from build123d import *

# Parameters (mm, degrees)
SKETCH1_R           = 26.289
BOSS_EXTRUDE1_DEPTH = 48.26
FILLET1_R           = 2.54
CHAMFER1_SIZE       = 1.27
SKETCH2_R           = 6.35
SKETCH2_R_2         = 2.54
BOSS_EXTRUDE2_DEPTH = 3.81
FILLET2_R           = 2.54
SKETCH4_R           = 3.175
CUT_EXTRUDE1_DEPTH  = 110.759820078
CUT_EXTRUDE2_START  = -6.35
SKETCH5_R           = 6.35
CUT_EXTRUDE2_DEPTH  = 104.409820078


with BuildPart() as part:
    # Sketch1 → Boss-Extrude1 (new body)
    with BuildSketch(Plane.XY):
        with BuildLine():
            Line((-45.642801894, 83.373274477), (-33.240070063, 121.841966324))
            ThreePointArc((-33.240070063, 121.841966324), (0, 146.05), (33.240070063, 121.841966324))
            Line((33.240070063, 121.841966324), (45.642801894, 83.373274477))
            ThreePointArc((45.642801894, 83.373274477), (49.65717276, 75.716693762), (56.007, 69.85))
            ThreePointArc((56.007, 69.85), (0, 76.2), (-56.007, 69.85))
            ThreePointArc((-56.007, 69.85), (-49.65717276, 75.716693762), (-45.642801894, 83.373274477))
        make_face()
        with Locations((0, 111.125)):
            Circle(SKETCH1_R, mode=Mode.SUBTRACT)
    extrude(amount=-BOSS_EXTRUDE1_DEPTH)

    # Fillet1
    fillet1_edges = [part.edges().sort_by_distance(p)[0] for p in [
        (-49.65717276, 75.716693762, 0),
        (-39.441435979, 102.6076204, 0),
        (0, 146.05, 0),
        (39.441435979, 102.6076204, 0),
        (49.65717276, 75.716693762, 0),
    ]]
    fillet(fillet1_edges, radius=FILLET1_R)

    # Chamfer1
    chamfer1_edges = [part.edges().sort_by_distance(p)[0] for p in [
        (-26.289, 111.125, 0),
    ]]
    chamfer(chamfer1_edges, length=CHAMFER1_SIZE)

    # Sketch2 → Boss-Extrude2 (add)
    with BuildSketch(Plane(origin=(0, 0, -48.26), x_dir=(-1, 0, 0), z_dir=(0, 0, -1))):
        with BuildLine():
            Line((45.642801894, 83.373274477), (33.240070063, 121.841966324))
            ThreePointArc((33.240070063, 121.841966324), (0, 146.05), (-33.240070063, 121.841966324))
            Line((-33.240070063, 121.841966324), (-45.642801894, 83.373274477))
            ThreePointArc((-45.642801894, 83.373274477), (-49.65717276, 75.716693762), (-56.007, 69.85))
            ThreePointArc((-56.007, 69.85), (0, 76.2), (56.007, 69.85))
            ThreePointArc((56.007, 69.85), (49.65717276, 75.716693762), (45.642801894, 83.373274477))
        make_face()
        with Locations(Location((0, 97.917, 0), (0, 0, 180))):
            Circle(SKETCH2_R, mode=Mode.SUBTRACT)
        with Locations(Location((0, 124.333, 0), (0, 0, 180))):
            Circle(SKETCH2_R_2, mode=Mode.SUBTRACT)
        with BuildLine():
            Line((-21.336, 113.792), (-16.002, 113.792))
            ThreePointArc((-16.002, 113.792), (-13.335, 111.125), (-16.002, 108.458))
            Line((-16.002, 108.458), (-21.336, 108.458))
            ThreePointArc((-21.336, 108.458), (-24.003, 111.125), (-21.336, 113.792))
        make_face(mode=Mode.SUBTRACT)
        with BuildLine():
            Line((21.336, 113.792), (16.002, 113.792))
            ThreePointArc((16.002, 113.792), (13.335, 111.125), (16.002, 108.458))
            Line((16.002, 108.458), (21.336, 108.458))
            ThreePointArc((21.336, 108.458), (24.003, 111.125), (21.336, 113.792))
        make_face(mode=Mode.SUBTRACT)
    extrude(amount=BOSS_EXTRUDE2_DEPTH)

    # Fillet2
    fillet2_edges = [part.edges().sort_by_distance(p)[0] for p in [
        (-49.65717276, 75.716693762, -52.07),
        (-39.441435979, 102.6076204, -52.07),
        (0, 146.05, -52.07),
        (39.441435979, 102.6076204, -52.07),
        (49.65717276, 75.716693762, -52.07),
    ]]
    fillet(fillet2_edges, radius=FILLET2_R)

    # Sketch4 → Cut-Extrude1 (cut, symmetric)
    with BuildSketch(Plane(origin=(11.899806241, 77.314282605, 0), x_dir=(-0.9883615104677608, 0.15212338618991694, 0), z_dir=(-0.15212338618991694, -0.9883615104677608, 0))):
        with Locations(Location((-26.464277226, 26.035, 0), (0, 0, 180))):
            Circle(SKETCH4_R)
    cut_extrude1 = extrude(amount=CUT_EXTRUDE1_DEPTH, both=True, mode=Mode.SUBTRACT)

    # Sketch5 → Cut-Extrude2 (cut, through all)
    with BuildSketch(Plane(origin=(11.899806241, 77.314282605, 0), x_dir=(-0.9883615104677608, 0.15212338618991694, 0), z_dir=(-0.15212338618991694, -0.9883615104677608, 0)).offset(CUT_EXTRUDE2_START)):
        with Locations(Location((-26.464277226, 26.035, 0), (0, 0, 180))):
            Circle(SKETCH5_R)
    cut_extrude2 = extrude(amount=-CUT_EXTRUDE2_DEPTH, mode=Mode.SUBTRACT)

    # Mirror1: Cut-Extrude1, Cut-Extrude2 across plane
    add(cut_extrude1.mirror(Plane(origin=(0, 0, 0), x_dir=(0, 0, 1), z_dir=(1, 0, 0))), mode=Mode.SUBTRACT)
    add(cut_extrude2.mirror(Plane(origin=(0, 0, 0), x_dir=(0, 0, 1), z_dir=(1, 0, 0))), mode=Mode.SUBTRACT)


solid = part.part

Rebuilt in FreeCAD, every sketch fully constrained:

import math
import FreeCAD as App
import Part
import Sketcher
Q = App.Units.Quantity


def edges_at(feature, points):
    """Names of the edges that pass closest to the given points."""
    edges = feature.Shape.Edges
    near = lambda p: min(range(len(edges)), key=lambda i: edges[i].distToShape(Part.Vertex(*p))[0])
    return sorted({f"Edge{near(p) + 1}" for p in points})

doc = App.newDocument("Part")
body = doc.addObject("PartDesign::Body", "Body")

sketch1 = doc.addObject("Sketcher::SketchObject", "Sketch")
body.addObject(sketch1)
sketch1.AttachmentSupport = (doc.XY_Plane, [""])
sketch1.MapMode = "FlatFace"
sketch1.addGeometry([
    Part.LineSegment(App.Vector(-33, 122, 0), App.Vector(-46, 83, 0)),
    Part.ArcOfCircle(Part.Circle(App.Vector(-70, 91, 0), App.Vector(0, 0, 1), 25), math.radians(-57), math.radians(-18)),
    Part.ArcOfCircle(Part.Circle(App.Vector(0, -174, 0), App.Vector(0, 0, 1), 250), math.radians(77), math.radians(103)),
    Part.ArcOfCircle(Part.Circle(App.Vector(70, 91, 0), App.Vector(0, 0, 1), 25), math.radians(-162), math.radians(-123)),
    Part.LineSegment(App.Vector(46, 83, 0), App.Vector(33, 122, 0)),
    Part.ArcOfCircle(Part.Circle(App.Vector(0, 111, 0), App.Vector(0, 0, 1), 35), math.radians(18), math.radians(162)),
    Part.Circle(App.Vector(0, 111, 0), App.Vector(0, 0, 1), 26),
], False)
sketch1.addConstraint([
    Sketcher.Constraint("Tangent", 0, 2, 1, 2),
    Sketcher.Constraint("Coincident", 1, 1, 2, 2),
    Sketcher.Constraint("Coincident", 2, 1, 3, 2),
    Sketcher.Constraint("Tangent", 3, 1, 4, 1),
    Sketcher.Constraint("Tangent", 4, 2, 5, 1),
    Sketcher.Constraint("Tangent", 5, 2, 0, 1),
    Sketcher.Constraint("Coincident", 6, 3, 5, 3),
    Sketcher.Constraint("Equal", 1, 3),
    Sketcher.Constraint("Symmetric", 1, 3, 3, 3, -2),
    Sketcher.Constraint("PointOnObject", 2, 3, -2),
    Sketcher.Constraint("PointOnObject", 5, 3, -2),
    Sketcher.Constraint("Radius", 1, Q("1 in")),
    Sketcher.Constraint("Diameter", 6, Q("2.07 in")),
    Sketcher.Constraint("Radius", 5, Q("1.375 in")),
    Sketcher.Constraint("DistanceY", -1, 1, 1, 1, Q("2.75 in")),
    Sketcher.Constraint("DistanceX", 1, 1, 2, 1, Q("4.41 in")),
    Sketcher.Constraint("DistanceY", -1, 1, 5, 3, Q("4.375 in")),
    Sketcher.Constraint("Radius", 2, 250.16587),
    Sketcher.Constraint("DistanceX", 1, 3, -1, 1, 69.817398),
])
pad1 = doc.addObject("PartDesign::Pad", "Pad")
body.addObject(pad1)
pad1.Profile = sketch1
pad1.Length = Q("1.9 in")
pad1.Reversed = True
doc.recompute()

fillet = doc.addObject("PartDesign::Fillet", "Fillet")
body.addObject(fillet)
fillet.Base = (pad1, edges_at(pad1, [
    (-49.657, 75.717, 0),
    (-39.441, 102.608, 0),
    (0, 146.05, 0),
    (39.441, 102.608, 0),
    (49.657, 75.717, 0),
]))
fillet.Radius = Q("0.1 in")
doc.recompute()

chamfer = doc.addObject("PartDesign::Chamfer", "Chamfer")
body.addObject(chamfer)
chamfer.Base = (fillet, edges_at(fillet, [(-26.289, 111.125, 0)]))
chamfer.Size = Q("0.05 in")

sketch2 = doc.addObject("Sketcher::SketchObject", "Sketch001")
body.addObject(sketch2)
sketch2.AttachmentSupport = (doc.XY_Plane, [""])
sketch2.MapMode = "FlatFace"
sketch2.AttachmentOffset = App.Placement(App.Vector(0, 0, -1.9 * 25.4), App.Rotation())
sketch2.addGeometry([
    Part.LineSegment(App.Vector(-45.6, 83.4, 0), App.Vector(-33.2, 121.8, 0)),
    Part.ArcOfCircle(Part.Circle(App.Vector(0, 111.1, 0), App.Vector(0, 0, 1), 34.9), math.radians(18), math.radians(162)),
    Part.LineSegment(App.Vector(33.2, 121.8, 0), App.Vector(45.6, 83.4, 0)),
    Part.ArcOfCircle(Part.Circle(App.Vector(69.8, 91.2, 0), App.Vector(0, 0, 1), 25.4), math.radians(-162), math.radians(-123)),
    Part.ArcOfCircle(Part.Circle(App.Vector(0, -174, 0), App.Vector(0, 0, 1), 250.2), math.radians(77), math.radians(103)),
    Part.ArcOfCircle(Part.Circle(App.Vector(-69.8, 91.2, 0), App.Vector(0, 0, 1), 25.4), math.radians(-57), math.radians(-18)),
    Part.Circle(App.Vector(0, 97.9, 0), App.Vector(0, 0, 1), 6.3),
    Part.ArcOfCircle(Part.Circle(App.Vector(21.3, 111.1, 0), App.Vector(0, 0, 1), 2.7), math.radians(-90), math.radians(90)),
    Part.LineSegment(App.Vector(21.3, 113.8, 0), App.Vector(16, 113.8, 0)),
    Part.ArcOfCircle(Part.Circle(App.Vector(16, 111.1, 0), App.Vector(0, 0, 1), 2.7), math.radians(90), math.radians(270)),
    Part.LineSegment(App.Vector(16, 108.5, 0), App.Vector(21.3, 108.5, 0)),
    Part.LineSegment(App.Vector(-16, 113.8, 0), App.Vector(-21.3, 113.8, 0)),
    Part.ArcOfCircle(Part.Circle(App.Vector(-21.3, 111.1, 0), App.Vector(0, 0, 1), 2.7), math.radians(90), math.radians(270)),
    Part.LineSegment(App.Vector(-21.3, 108.5, 0), App.Vector(-16, 108.5, 0)),
    Part.ArcOfCircle(Part.Circle(App.Vector(-16, 111.1, 0), App.Vector(0, 0, 1), 2.7), math.radians(-90), math.radians(90)),
    Part.Circle(App.Vector(0, 124.3, 0), App.Vector(0, 0, 1), 2.5),
], False)
sketch2.addConstraint([
    Sketcher.Constraint("Tangent", 0, 2, 1, 2),
    Sketcher.Constraint("Tangent", 1, 1, 2, 1),
    Sketcher.Constraint("Tangent", 2, 2, 3, 1),
    Sketcher.Constraint("Coincident", 3, 2, 4, 1),
    Sketcher.Constraint("Coincident", 4, 2, 5, 1),
    Sketcher.Constraint("Tangent", 5, 2, 0, 1),
    Sketcher.Constraint("Tangent", 7, 2, 8, 1),
    Sketcher.Constraint("Tangent", 8, 2, 9, 1),
    Sketcher.Constraint("Tangent", 9, 2, 10, 1),
    Sketcher.Constraint("Tangent", 10, 2, 7, 1),
    Sketcher.Constraint("Tangent", 11, 2, 12, 1),
    Sketcher.Constraint("Tangent", 12, 2, 13, 1),
    Sketcher.Constraint("Tangent", 13, 2, 14, 1),
    Sketcher.Constraint("Tangent", 14, 2, 11, 1),
    Sketcher.Constraint("Horizontal", 8),
    Sketcher.Constraint("Horizontal", 10),
    Sketcher.Constraint("Horizontal", 11),
    Sketcher.Constraint("Horizontal", 13),
    Sketcher.Constraint("Equal", 3, 5),
    Sketcher.Constraint("Equal", 9, 12),
    Sketcher.Constraint("Symmetric", 3, 3, 5, 3, -2),
    Sketcher.Constraint("Symmetric", 7, 3, 12, 3, -2),
    Sketcher.Constraint("PointOnObject", 1, 3, -2),
    Sketcher.Constraint("PointOnObject", 4, 3, -2),
    Sketcher.Constraint("PointOnObject", 6, 3, -2),
    Sketcher.Constraint("PointOnObject", 15, 3, -2),
    Sketcher.Constraint("Horizontal", 1, 3, 7, 3),
    Sketcher.Constraint("Equal", 10, 11),
    Sketcher.Constraint("Radius", 3, Q("1 in")),
    Sketcher.Constraint("Diameter", 6, Q("0.5 in")),
    Sketcher.Constraint("Diameter", 15, Q("0.2 in")),
    Sketcher.Constraint("Radius", 1, Q("1.375 in")),
    Sketcher.Constraint("Radius", 7, Q("0.105 in")),
    Sketcher.Constraint("DistanceX", 8, 2, 8, 1, Q("0.21 in")),
    Sketcher.Constraint("DistanceX", -1, 1, 7, 3, Q("0.84 in")),
    Sketcher.Constraint("DistanceY", -1, 1, 3, 2, Q("2.75 in")),
    Sketcher.Constraint("DistanceY", -1, 1, 7, 2, Q("4.48 in")),
    Sketcher.Constraint("DistanceY", 6, 3, 1, 3, Q("0.52 in")),
    Sketcher.Constraint("DistanceY", 1, 3, 15, 3, Q("0.52 in")),
    Sketcher.Constraint("DistanceX", -1, 1, 3, 2, Q("2.205 in")),
    Sketcher.Constraint("Radius", 4, 250.16587),
    Sketcher.Constraint("DistanceX", -1, 1, 3, 3, 69.817398),
])
pad2 = doc.addObject("PartDesign::Pad", "Pad001")
body.addObject(pad2)
pad2.Profile = sketch2
pad2.Length = Q("0.15 in")
pad2.Reversed = True
doc.recompute()

fillet2 = doc.addObject("PartDesign::Fillet", "Fillet001")
body.addObject(fillet2)
fillet2.Base = (pad2, edges_at(pad2, [
    (-49.657, 75.717, -52.07),
    (-39.441, 102.608, -52.07),
    (0, 146.05, -52.07),
    (39.441, 102.608, -52.07),
    (49.657, 75.717, -52.07),
]))
fillet2.Radius = Q("0.1 in")

sketch3 = doc.addObject("Sketcher::SketchObject", "Sketch002")
body.addObject(sketch3)
sketch3.Placement = App.Placement(App.Vector(11.899806, 77.314283, 0), App.Rotation(App.Vector(-0.98836151, 0.152123386, 0), App.Vector(0, 0, -0.999999999), App.Vector(-0.152123386, -0.98836151, 0), "ZXY"))
sketch3.addGeometry(Part.Circle(App.Vector(-26.5, 26, 0), App.Vector(0, 0, 1), 3.2), False)
sketch3.addConstraint([
    Sketcher.Constraint("Diameter", 0, Q("0.25 in")),
    Sketcher.Constraint("DistanceY", -1, 1, 0, 3, Q("1.025 in")),
    Sketcher.Constraint("DistanceX", 0, 3, -1, 1, 26.464277),
])
pocket1 = doc.addObject("PartDesign::Pocket", "Pocket")
body.addObject(pocket1)
pocket1.Profile = sketch3
pocket1.Length = 221.51964
pocket1.Midplane = True

sketch4 = doc.addObject("Sketcher::SketchObject", "Sketch003")
body.addObject(sketch4)
sketch4.Placement = App.Placement(App.Vector(12.86579, 83.590378, 0), App.Rotation(App.Vector(-0.98836151, 0.152123386, 0), App.Vector(0, 0, -0.999999999), App.Vector(-0.152123386, -0.98836151, 0), "ZXY"))
sketch4.addGeometry(Part.Circle(App.Vector(-26, 26, 0), App.Vector(0, 0, 1), 6), False)
sketch4.addConstraint([
    Sketcher.Constraint("Diameter", 0, Q("0.5 in")),
    Sketcher.Constraint("DistanceY", -1, 1, 0, 3, Q("1.025 in")),
    Sketcher.Constraint("DistanceX", 0, 3, -1, 1, 26.464277),
])
pocket2 = doc.addObject("PartDesign::Pocket", "Pocket001")
body.addObject(pocket2)
pocket2.Profile = sketch4
pocket2.Type = "ThroughAll"
doc.recompute()

mirrored = doc.addObject("PartDesign::Mirrored", "Mirrored")
body.addObject(mirrored)
mirrored.Originals = [pocket1, pocket2]
mirrored.MirrorPlane = (doc.YZ_Plane, [""])
body.Tip = mirrored

doc.recompute()
